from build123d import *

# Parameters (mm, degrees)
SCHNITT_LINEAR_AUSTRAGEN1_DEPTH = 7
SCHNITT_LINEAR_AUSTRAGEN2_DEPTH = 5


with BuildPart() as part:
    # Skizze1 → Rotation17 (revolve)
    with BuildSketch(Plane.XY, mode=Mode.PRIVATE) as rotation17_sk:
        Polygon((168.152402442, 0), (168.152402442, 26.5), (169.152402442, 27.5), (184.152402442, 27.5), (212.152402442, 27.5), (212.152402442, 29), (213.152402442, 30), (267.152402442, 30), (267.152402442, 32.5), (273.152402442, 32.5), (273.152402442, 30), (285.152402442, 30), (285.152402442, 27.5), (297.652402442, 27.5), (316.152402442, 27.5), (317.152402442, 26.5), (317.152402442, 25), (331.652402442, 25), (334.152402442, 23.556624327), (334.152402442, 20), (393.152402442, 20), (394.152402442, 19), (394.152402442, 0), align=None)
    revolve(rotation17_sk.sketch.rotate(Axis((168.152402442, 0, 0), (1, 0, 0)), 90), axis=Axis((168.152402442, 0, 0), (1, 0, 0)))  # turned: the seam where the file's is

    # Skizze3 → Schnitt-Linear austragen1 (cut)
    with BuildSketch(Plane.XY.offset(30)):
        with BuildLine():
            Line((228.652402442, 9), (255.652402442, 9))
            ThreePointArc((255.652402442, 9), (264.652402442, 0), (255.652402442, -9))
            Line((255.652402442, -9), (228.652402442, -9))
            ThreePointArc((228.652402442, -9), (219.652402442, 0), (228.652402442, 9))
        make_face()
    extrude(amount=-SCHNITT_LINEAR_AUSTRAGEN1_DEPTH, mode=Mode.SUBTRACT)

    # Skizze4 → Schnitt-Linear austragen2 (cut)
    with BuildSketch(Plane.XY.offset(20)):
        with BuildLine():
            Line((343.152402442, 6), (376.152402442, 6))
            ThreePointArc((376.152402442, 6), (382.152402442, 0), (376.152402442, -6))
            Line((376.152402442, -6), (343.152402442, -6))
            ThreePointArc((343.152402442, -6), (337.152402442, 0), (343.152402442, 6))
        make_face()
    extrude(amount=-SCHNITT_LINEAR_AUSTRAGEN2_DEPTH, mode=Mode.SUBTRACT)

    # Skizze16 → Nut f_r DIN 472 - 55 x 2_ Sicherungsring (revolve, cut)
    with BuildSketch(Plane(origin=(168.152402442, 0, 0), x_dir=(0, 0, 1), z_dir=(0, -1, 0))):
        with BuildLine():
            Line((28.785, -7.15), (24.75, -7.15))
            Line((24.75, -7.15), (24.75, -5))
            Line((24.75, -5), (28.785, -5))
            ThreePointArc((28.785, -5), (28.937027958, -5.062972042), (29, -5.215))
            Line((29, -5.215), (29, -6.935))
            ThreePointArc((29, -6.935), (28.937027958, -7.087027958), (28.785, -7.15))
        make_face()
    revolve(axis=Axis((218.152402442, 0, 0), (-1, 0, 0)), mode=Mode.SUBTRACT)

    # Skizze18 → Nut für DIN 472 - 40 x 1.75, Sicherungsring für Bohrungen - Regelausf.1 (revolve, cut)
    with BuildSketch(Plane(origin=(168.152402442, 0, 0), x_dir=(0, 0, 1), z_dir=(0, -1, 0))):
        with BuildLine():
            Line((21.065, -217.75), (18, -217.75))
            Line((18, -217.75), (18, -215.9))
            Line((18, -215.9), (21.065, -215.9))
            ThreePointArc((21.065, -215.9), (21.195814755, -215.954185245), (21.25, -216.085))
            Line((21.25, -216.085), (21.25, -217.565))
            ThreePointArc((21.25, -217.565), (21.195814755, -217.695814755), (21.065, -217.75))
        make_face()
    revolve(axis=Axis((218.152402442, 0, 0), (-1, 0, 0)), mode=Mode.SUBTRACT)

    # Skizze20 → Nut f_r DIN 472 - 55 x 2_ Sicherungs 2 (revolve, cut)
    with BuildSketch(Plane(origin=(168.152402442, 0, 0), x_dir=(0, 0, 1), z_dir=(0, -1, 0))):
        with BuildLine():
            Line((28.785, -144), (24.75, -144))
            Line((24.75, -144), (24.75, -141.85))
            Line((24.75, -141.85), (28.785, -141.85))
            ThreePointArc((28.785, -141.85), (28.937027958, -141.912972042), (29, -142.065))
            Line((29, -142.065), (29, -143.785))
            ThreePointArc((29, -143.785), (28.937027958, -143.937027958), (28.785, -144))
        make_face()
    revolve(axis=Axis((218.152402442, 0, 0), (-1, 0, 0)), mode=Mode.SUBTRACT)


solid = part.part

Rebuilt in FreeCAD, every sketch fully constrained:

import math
import FreeCAD as App
import Part
import Sketcher

V = App.Vector
Q = App.Units.Quantity


def add_polygon(sketch, points):
    """Adds a closed chain of lines whose ends are joined by coincident constraints."""
    first, n = sketch.GeometryCount, len(points)
    for a, b in zip(points, points[1:] + points[:1]):
        sketch.addGeometry(Part.LineSegment(App.Vector(*a, 0), App.Vector(*b, 0)), False)
    for i in range(n):
        sketch.addConstraint(Sketcher.Constraint("Coincident", first + i, 2, first + (i + 1) % n, 1))

doc = App.newDocument("Part")
body = doc.addObject("PartDesign::Body", "Body")

# Sketch on XY plane
sketch1 = body.newObject("Sketcher::SketchObject", "Sketch")
sketch1.AttachmentSupport = (doc.getObject("XY_Plane"), [""])
sketch1.MapMode = "FlatFace"
add_polygon(sketch1, [(168.2, 26.5), (168.2, 0), (394.2, 0), (394.2, 19), (393.2, 20), (334.2, 20), (334.2, 23.6), (331.7, 25), (317.2, 25), (317.2, 26.5), (316.2, 27.5), (285.2, 27.5), (285.2, 30), (273.2, 30), (273.2, 32.5), (267.2, 32.5), (267.2, 30), (213.2, 30), (212.2, 29), (212.2, 27.5), (169.2, 27.5)])  # lines 0-20
sketch1.addConstraint([
    Sketcher.Constraint("Vertical", 0),
    Sketcher.Constraint("Horizontal", 1),
    Sketcher.Constraint("Vertical", 2),
    Sketcher.Constraint("Horizontal", 4),
    Sketcher.Constraint("Vertical", 5),
    Sketcher.Constraint("Horizontal", 7),
    Sketcher.Constraint("Vertical", 8),
    Sketcher.Constraint("Horizontal", 10),
    Sketcher.Constraint("Vertical", 11),
    Sketcher.Constraint("Horizontal", 12),
    Sketcher.Constraint("Vertical", 13),
    Sketcher.Constraint("Horizontal", 14),
    Sketcher.Constraint("Vertical", 15),
    Sketcher.Constraint("Horizontal", 16),
    Sketcher.Constraint("Vertical", 18),
    Sketcher.Constraint("Horizontal", 19),
    Sketcher.Constraint("PointOnObject", 0, 2, -1),
    Sketcher.Constraint("Parallel", 3, 9),
    Sketcher.Constraint("Perpendicular", 9, 17),
    Sketcher.Constraint("Parallel", 17, 20),
    Sketcher.Constraint("Horizontal", 12, 2, 15, 2),
    Sketcher.Constraint("Horizontal", 10, 2, 18, 2),
    Sketcher.Constraint("Horizontal", 8, 2, 20, 2),
    Sketcher.Constraint("Equal", 11, 13),
    Sketcher.Constraint("Equal", 8, 18),
    Sketcher.Constraint("Equal", 3, 9),
    Sketcher.Constraint("Equal", 9, 17),
    Sketcher.Constraint("Equal", 17, 20),
    Sketcher.Constraint("DistanceX", 1, 1, 1, 2, 226.0),
    Sketcher.Constraint("DistanceX", 4, 2, 4, 1, 59.0),
    Sketcher.Constraint("DistanceX", 10, 2, 10, 1, 31.0),
    Sketcher.Constraint("DistanceX", 12, 2, 12, 1, 12.0),
    Sketcher.Constraint("DistanceX", 14, 2, 14, 1, 6.0),
    Sketcher.Constraint("DistanceX", 16, 2, 16, 1, 54.0),
    Sketcher.Constraint("DistanceX", 19, 2, 19, 1, 43.0),
    Sketcher.Constraint("DistanceY", 2, 1, 2, 2, 19.0),
    Sketcher.Constraint("Angle", 6, Q("150 deg")),
    Sketcher.Constraint("DistanceX", 7, 2, 7, 1, 14.5),
    Sketcher.Constraint("DistanceY", 0, 2, 0, 1, 26.5),
    Sketcher.Constraint("DistanceY", 8, 1, 8, 2, 1.5),
    Sketcher.Constraint("DistanceY", 11, 1, 11, 2, 2.5),
    Sketcher.Constraint("DistanceX", -1, 1, 0, 2, 168.152402),
])
revolution = body.newObject("PartDesign::Revolution", "Revolution")
revolution.Profile = sketch1
revolution.ReferenceAxis = (sketch1, ["H_Axis"])
revolution.Angle = 360

# Sketch on XY plane
sketch2 = body.newObject("Sketcher::SketchObject", "Sketch001")
sketch2.AttachmentSupport = (doc.getObject("XY_Plane"), [""])
sketch2.MapMode = "FlatFace"
sketch2.AttachmentOffset = App.Placement(V(0, 0, 30), App.Rotation())
sketch2.addGeometry([
    Part.LineSegment(V(256, 9, 0), V(229, 9, 0)),
    Part.ArcOfCircle(Part.Circle(V(229, 0, 0), V(0, 0, 1), 9), math.radians(90), math.radians(270)),
    Part.LineSegment(V(229, -9, 0), V(256, -9, 0)),
    Part.ArcOfCircle(Part.Circle(V(256, 0, 0), V(0, 0, 1), 9), math.radians(-90), math.radians(90)),
], False)
sketch2.addConstraint([
    Sketcher.Constraint("Tangent", 0, 2, 1, 1),
    Sketcher.Constraint("Tangent", 1, 2, 2, 1),
    Sketcher.Constraint("Tangent", 2, 2, 3, 1),
    Sketcher.Constraint("Tangent", 3, 2, 0, 1),
    Sketcher.Constraint("Horizontal", 0),
    Sketcher.Constraint("Horizontal", 2),
    Sketcher.Constraint("PointOnObject", 1, 3, -1),
    Sketcher.Constraint("Radius", 1, 9.0),
    Sketcher.Constraint("DistanceX", 0, 2, 0, 1, 27.0),
    Sketcher.Constraint("DistanceX", -1, 1, 1, 3, 228.652402),
])
pocket1 = body.newObject("PartDesign::Pocket", "Pocket")
pocket1.Profile = sketch2
pocket1.Length = 7

# Sketch on XY plane
sketch3 = body.newObject("Sketcher::SketchObject", "Sketch002")
sketch3.AttachmentSupport = (doc.getObject("XY_Plane"), [""])
sketch3.MapMode = "FlatFace"
sketch3.AttachmentOffset = App.Placement(V(0, 0, 20), App.Rotation())
sketch3.addGeometry([
    Part.LineSegment(V(376, 6, 0), V(343, 6, 0)),
    Part.ArcOfCircle(Part.Circle(V(343, 0, 0), V(0, 0, 1), 6), math.radians(90), math.radians(270)),
    Part.LineSegment(V(343, -6, 0), V(376, -6, 0)),
    Part.ArcOfCircle(Part.Circle(V(376, 0, 0), V(0, 0, 1), 6), math.radians(-90), math.radians(90)),
], False)
sketch3.addConstraint([
    Sketcher.Constraint("Tangent", 0, 2, 1, 1),
    Sketcher.Constraint("Tangent", 1, 2, 2, 1),
    Sketcher.Constraint("Tangent", 2, 2, 3, 1),
    Sketcher.Constraint("Tangent", 3, 2, 0, 1),
    Sketcher.Constraint("Horizontal", 0),
    Sketcher.Constraint("Horizontal", 2),
    Sketcher.Constraint("PointOnObject", 1, 3, -1),
    Sketcher.Constraint("Radius", 1, 6.0),
    Sketcher.Constraint("DistanceX", 0, 2, 0, 1, 33.0),
    Sketcher.Constraint("DistanceX", -1, 1, 1, 3, 343.152402),
])
pocket2 = body.newObject("PartDesign::Pocket", "Pocket001")
pocket2.Profile = sketch3
pocket2.Length = 5

# Sketch on XZ plane
sketch4 = body.newObject("Sketcher::SketchObject", "Sketch003")
sketch4.AttachmentSupport = (doc.getObject("XZ_Plane"), [""])
sketch4.MapMode = "FlatFace"
sketch4.addGeometry([
    Part.LineSegment(V(175.3, 24.75, 0), V(175.3, 28.79, 0)),  # 0
    Part.ArcOfCircle(Part.Circle(V(175.09, 28.79, 0), V(0, 0, 1), 0.21), math.radians(0), math.radians(90)),  # 1
    Part.LineSegment(V(175.09, 29, 0), V(173.37, 29, 0)),  # 2
    Part.ArcOfCircle(Part.Circle(V(173.37, 28.79, 0), V(0, 0, 1), 0.21), math.radians(90), math.radians(180)),  # 3
    Part.LineSegment(V(173.15, 28.79, 0), V(173.15, 24.75, 0)),  # 4
    Part.LineSegment(V(173.15, 24.75, 0), V(175.3, 24.75, 0)),  # 5
], False)
sketch4.addConstraint([
    Sketcher.Constraint("Tangent", 0, 2, 1, 1),
    Sketcher.Constraint("Tangent", 1, 2, 2, 1),
    Sketcher.Constraint("Tangent", 2, 2, 3, 1),
    Sketcher.Constraint("Tangent", 3, 2, 4, 1),
    Sketcher.Constraint("Coincident", 4, 2, 5, 1),
    Sketcher.Constraint("Coincident", 5, 2, 0, 1),
    Sketcher.Constraint("Vertical", 0),
    Sketcher.Constraint("Horizontal", 2),
    Sketcher.Constraint("Vertical", 4),
    Sketcher.Constraint("Horizontal", 5),
    Sketcher.Constraint("Equal", 1, 3),
    Sketcher.Constraint("DistanceY", -1, 1, 1, 2, 29.0),
    Sketcher.Constraint("Radius", 1, 0.215),
    Sketcher.Constraint("DistanceX", 2, 2, 2, 1, 1.72),
    Sketcher.Constraint("DistanceY", 0, 1, 0, 2, 4.035),
    Sketcher.Constraint("DistanceX", -1, 1, 1, 3, 175.087402),
])
groove = body.newObject("PartDesign::Groove", "Groove")
groove.Profile = sketch4
groove.ReferenceAxis = (sketch4, ["H_Axis"])
groove.Angle = 360

# Sketch on XZ plane
sketch5 = body.newObject("Sketcher::SketchObject", "Sketch004")
sketch5.AttachmentSupport = (doc.getObject("XZ_Plane"), [""])
sketch5.MapMode = "FlatFace"
sketch5.addGeometry([
    Part.LineSegment(V(385.9, 18, 0), V(385.9, 21.07, 0)),  # 0
    Part.ArcOfCircle(Part.Circle(V(385.72, 21.07, 0), V(0, 0, 1), 0.18), math.radians(0), math.radians(90)),  # 1
    Part.LineSegment(V(385.72, 21.25, 0), V(384.24, 21.25, 0)),  # 2
    Part.ArcOfCircle(Part.Circle(V(384.24, 21.07, 0), V(0, 0, 1), 0.18), math.radians(90), math.radians(180)),  # 3
    Part.LineSegment(V(384.05, 21.07, 0), V(384.05, 18, 0)),  # 4
    Part.LineSegment(V(384.05, 18, 0), V(385.9, 18, 0)),  # 5
], False)
sketch5.addConstraint([
    Sketcher.Constraint("Tangent", 0, 2, 1, 1),
    Sketcher.Constraint("Tangent", 1, 2, 2, 1),
    Sketcher.Constraint("Tangent", 2, 2, 3, 1),
    Sketcher.Constraint("Tangent", 3, 2, 4, 1),
    Sketcher.Constraint("Coincident", 4, 2, 5, 1),
    Sketcher.Constraint("Coincident", 5, 2, 0, 1),
    Sketcher.Constraint("Vertical", 0),
    Sketcher.Constraint("Horizontal", 2),
    Sketcher.Constraint("Vertical", 4),
    Sketcher.Constraint("Horizontal", 5),
    Sketcher.Constraint("Equal", 1, 3),
    Sketcher.Constraint("DistanceY", -1, 1, 4, 2, 18.0),
    Sketcher.Constraint("Radius", 1, 0.185),
    Sketcher.Constraint("DistanceX", 2, 2, 2, 1, 1.48),
    Sketcher.Constraint("DistanceY", 0, 1, 0, 2, 3.065),
    Sketcher.Constraint("DistanceX", -1, 1, 1, 3, 385.717402),
])
groove2 = body.newObject("PartDesign::Groove", "Groove001")
groove2.Profile = sketch5
groove2.ReferenceAxis = (sketch5, ["H_Axis"])
groove2.Angle = 360

# Sketch on XZ plane
sketch6 = body.newObject("Sketcher::SketchObject", "Sketch005")
sketch6.AttachmentSupport = (doc.getObject("XZ_Plane"), [""])
sketch6.MapMode = "FlatFace"
sketch6.addGeometry([
    Part.LineSegment(V(312.15, 24.75, 0), V(312.15, 28.79, 0)),  # 0
    Part.ArcOfCircle(Part.Circle(V(311.94, 28.79, 0), V(0, 0, 1), 0.21), math.radians(0), math.radians(90)),  # 1
    Part.LineSegment(V(311.94, 29, 0), V(310.22, 29, 0)),  # 2
    Part.ArcOfCircle(Part.Circle(V(310.22, 28.79, 0), V(0, 0, 1), 0.21), math.radians(90), math.radians(180)),  # 3
    Part.LineSegment(V(310, 28.79, 0), V(310, 24.75, 0)),  # 4
    Part.LineSegment(V(310, 24.75, 0), V(312.15, 24.75, 0)),  # 5
], False)
sketch6.addConstraint([
    Sketcher.Constraint("Tangent", 0, 2, 1, 1),
    Sketcher.Constraint("Tangent", 1, 2, 2, 1),
    Sketcher.Constraint("Tangent", 2, 2, 3, 1),
    Sketcher.Constraint("Tangent", 3, 2, 4, 1),
    Sketcher.Constraint("Coincident", 4, 2, 5, 1),
    Sketcher.Constraint("Coincident", 5, 2, 0, 1),
    Sketcher.Constraint("Vertical", 0),
    Sketcher.Constraint("Horizontal", 2),
    Sketcher.Constraint("Vertical", 4),
    Sketcher.Constraint("Horizontal", 5),
    Sketcher.Constraint("Equal", 1, 3),
    Sketcher.Constraint("DistanceY", -1, 1, 1, 2, 29.0),
    Sketcher.Constraint("Radius", 1, 0.215),
    Sketcher.Constraint("DistanceX", 2, 2, 2, 1, 1.72),
    Sketcher.Constraint("DistanceY", 0, 1, 0, 2, 4.035),
    Sketcher.Constraint("DistanceX", -1, 1, 1, 3, 311.937402),
])
groove3 = body.newObject("PartDesign::Groove", "Groove002")
groove3.Profile = sketch6
groove3.ReferenceAxis = (sketch6, ["H_Axis"])
groove3.Angle = 360

doc.recompute()
